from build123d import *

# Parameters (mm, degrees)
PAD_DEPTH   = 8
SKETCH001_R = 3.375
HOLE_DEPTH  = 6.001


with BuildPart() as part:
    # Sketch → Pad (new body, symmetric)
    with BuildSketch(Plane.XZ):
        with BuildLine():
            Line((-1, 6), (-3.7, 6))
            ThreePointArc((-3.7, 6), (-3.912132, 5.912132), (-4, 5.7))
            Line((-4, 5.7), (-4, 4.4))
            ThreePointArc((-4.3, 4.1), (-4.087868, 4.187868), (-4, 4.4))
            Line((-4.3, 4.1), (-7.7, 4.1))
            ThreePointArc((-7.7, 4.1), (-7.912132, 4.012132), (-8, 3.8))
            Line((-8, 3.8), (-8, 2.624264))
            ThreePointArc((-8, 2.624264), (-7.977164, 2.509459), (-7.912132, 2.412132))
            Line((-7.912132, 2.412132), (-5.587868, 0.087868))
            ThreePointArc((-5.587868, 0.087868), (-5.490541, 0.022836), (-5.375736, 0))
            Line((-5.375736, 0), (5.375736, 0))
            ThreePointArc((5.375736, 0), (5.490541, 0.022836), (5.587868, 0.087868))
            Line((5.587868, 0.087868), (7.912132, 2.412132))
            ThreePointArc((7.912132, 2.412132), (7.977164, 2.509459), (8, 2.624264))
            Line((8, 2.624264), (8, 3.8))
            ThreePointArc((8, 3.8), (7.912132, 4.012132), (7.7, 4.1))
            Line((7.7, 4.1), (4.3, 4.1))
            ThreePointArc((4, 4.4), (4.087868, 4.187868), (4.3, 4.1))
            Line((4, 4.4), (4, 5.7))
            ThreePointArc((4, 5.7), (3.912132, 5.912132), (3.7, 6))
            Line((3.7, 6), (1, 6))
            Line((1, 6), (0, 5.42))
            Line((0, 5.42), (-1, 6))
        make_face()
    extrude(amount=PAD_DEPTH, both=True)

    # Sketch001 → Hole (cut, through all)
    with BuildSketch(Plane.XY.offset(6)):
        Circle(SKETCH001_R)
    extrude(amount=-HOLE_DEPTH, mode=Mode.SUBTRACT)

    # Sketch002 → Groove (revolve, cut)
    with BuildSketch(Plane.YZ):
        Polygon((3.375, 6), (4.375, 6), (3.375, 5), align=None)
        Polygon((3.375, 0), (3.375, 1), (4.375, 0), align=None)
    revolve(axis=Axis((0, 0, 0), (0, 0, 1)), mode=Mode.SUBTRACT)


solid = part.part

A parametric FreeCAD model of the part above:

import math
import FreeCAD as App
import Part
import Sketcher
from FreeCAD import Vector
Q = App.Units.Quantity

doc = App.newDocument("Part")
body = doc.addObject("PartDesign::Body", "Body")

# Sketch on XZ plane
sketch1 = body.newObject("Sketcher::SketchObject", "Sketch")
sketch1.AttachmentSupport = (doc.getObject("XZ_Plane"), [""])
sketch1.MapMode = "FlatFace"
sketch1.addGeometry(Part.LineSegment(Vector(-1, 6, 0), Vector(-3.7, 6, 0)), False)
sketch1.addGeometry(Part.ArcOfCircle(Part.Circle(Vector(-3.7, 5.7, 0), Vector(0, 0, 1), 0.3), math.radians(90.000022), math.radians(179.999978)), False)
sketch1.addGeometry(Part.LineSegment(Vector(-4, 5.7, 0), Vector(-4, 4.4, 0)), False)
sketch1.addGeometry(Part.ArcOfCircle(Part.Circle(Vector(-4.3, 4.4, 0), Vector(0, 0, 1), 0.3), math.radians(-89.999978), math.radians(-0.000022)), False)
sketch1.addGeometry(Part.LineSegment(Vector(-4.3, 4.1, 0), Vector(-7.7, 4.1, 0)), False)
sketch1.addGeometry(Part.ArcOfCircle(Part.Circle(Vector(-7.7, 3.8, 0), Vector(0, 0, 1), 0.3), math.radians(90.000022), math.radians(179.999978)), False)
sketch1.addGeometry(Part.LineSegment(Vector(-8, 3.8, 0), Vector(-8, 2.624264, 0)), False)
sketch1.addGeometry(Part.ArcOfCircle(Part.Circle(Vector(-7.700002, 2.624263, 0), Vector(0, 0, 1), 0.299998), math.radians(179.999874), math.radians(225.000148)), False)
sketch1.addGeometry(Part.LineSegment(Vector(-7.912132, 2.412132, 0), Vector(-5.587868, 0.087868, 0)), False)
sketch1.addGeometry(Part.ArcOfCircle(Part.Circle(Vector(-5.375737, 0.299998, 0), Vector(0, 0, 1), 0.299998), math.radians(-135.000148), math.radians(-89.999874)), False)
sketch1.addGeometry(Part.LineSegment(Vector(-5.375736, 0, 0), Vector(5.375736, 0, 0)), False)
sketch1.addGeometry(Part.ArcOfCircle(Part.Circle(Vector(5.375737, 0.299998, 0), Vector(0, 0, 1), 0.299998), math.radians(-90.000126), math.radians(-44.999852)), False)
sketch1.addGeometry(Part.LineSegment(Vector(5.587868, 0.087868, 0), Vector(7.912132, 2.412132, 0)), False)
sketch1.addGeometry(Part.ArcOfCircle(Part.Circle(Vector(7.700002, 2.624263, 0), Vector(0, 0, 1), 0.299998), math.radians(-45.000148), math.radians(0.000126)), False)
sketch1.addGeometry(Part.LineSegment(Vector(8, 2.624264, 0), Vector(8, 3.8, 0)), False)
sketch1.addGeometry(Part.ArcOfCircle(Part.Circle(Vector(7.7, 3.8, 0), Vector(0, 0, 1), 0.3), math.radians(0.000022), math.radians(89.999978)), False)
sketch1.addGeometry(Part.LineSegment(Vector(7.7, 4.1, 0), Vector(4.3, 4.1, 0)), False)
sketch1.addGeometry(Part.ArcOfCircle(Part.Circle(Vector(4.3, 4.4, 0), Vector(0, 0, 1), 0.3), math.radians(-179.999978), math.radians(-90.000022)), False)
sketch1.addGeometry(Part.LineSegment(Vector(4, 4.4, 0), Vector(4, 5.7, 0)), False)
sketch1.addGeometry(Part.ArcOfCircle(Part.Circle(Vector(3.7, 5.7, 0), Vector(0, 0, 1), 0.3), math.radians(0.000022), math.radians(89.999978)), False)
sketch1.addGeometry(Part.LineSegment(Vector(3.7, 6, 0), Vector(1, 6, 0)), False)
sketch1.addGeometry(Part.LineSegment(Vector(1, 6, 0), Vector(0, 5.42, 0)), False)
sketch1.addGeometry(Part.LineSegment(Vector(0, 5.42, 0), Vector(-1, 6, 0)), False)
sketch1.addConstraint(Sketcher.Constraint("Tangent", 0, 2, 1, 1))
sketch1.addConstraint(Sketcher.Constraint("Tangent", 1, 2, 2, 1))
sketch1.addConstraint(Sketcher.Constraint("Tangent", 2, 2, 3, 2))
sketch1.addConstraint(Sketcher.Constraint("Tangent", 3, 1, 4, 1))
sketch1.addConstraint(Sketcher.Constraint("Tangent", 4, 2, 5, 1))
sketch1.addConstraint(Sketcher.Constraint("Tangent", 5, 2, 6, 1))
sketch1.addConstraint(Sketcher.Constraint("Coincident", 6, 2, 7, 1))
sketch1.addConstraint(Sketcher.Constraint("Coincident", 7, 2, 8, 1))
sketch1.addConstraint(Sketcher.Constraint("Coincident", 8, 2, 9, 1))
sketch1.addConstraint(Sketcher.Constraint("Coincident", 9, 2, 10, 1))
sketch1.addConstraint(Sketcher.Constraint("Coincident", 10, 2, 11, 1))
sketch1.addConstraint(Sketcher.Constraint("Coincident", 11, 2, 12, 1))
sketch1.addConstraint(Sketcher.Constraint("Coincident", 12, 2, 13, 1))
sketch1.addConstraint(Sketcher.Constraint("Coincident", 13, 2, 14, 1))
sketch1.addConstraint(Sketcher.Constraint("Tangent", 14, 2, 15, 1))
sketch1.addConstraint(Sketcher.Constraint("Tangent", 15, 2, 16, 1))
sketch1.addConstraint(Sketcher.Constraint("Tangent", 16, 2, 17, 2))
sketch1.addConstraint(Sketcher.Constraint("Tangent", 17, 1, 18, 1))
sketch1.addConstraint(Sketcher.Constraint("Tangent", 18, 2, 19, 1))
sketch1.addConstraint(Sketcher.Constraint("Tangent", 19, 2, 20, 1))
sketch1.addConstraint(Sketcher.Constraint("Coincident", 20, 2, 21, 1))
sketch1.addConstraint(Sketcher.Constraint("Coincident", 21, 2, 22, 1))
sketch1.addConstraint(Sketcher.Constraint("Coincident", 22, 2, 0, 1))
sketch1.addConstraint(Sketcher.Constraint("Horizontal", 0))
sketch1.addConstraint(Sketcher.Constraint("Vertical", 2))
sketch1.addConstraint(Sketcher.Constraint("Horizontal", 4))
sketch1.addConstraint(Sketcher.Constraint("Vertical", 6))
sketch1.addConstraint(Sketcher.Constraint("Horizontal", 10))
sketch1.addConstraint(Sketcher.Constraint("Vertical", 14))
sketch1.addConstraint(Sketcher.Constraint("Horizontal", 16))
sketch1.addConstraint(Sketcher.Constraint("Vertical", 18))
sketch1.addConstraint(Sketcher.Constraint("Horizontal", 20))
sketch1.addConstraint(Sketcher.Constraint("Equal", 1, 3))
sketch1.addConstraint(Sketcher.Constraint("Equal", 3, 5))
sketch1.addConstraint(Sketcher.Constraint("Equal", 5, 7))
sketch1.addConstraint(Sketcher.Constraint("Equal", 7, 9))
sketch1.addConstraint(Sketcher.Constraint("Equal", 9, 11))
sketch1.addConstraint(Sketcher.Constraint("Equal", 11, 13))
sketch1.addConstraint(Sketcher.Constraint("Equal", 13, 15))
sketch1.addConstraint(Sketcher.Constraint("Equal", 15, 17))
sketch1.addConstraint(Sketcher.Constraint("Equal", 17, 19))
sketch1.addConstraint(Sketcher.Constraint("Symmetric", 9, 2, 10, 2, -1, 1))
sketch1.addConstraint(Sketcher.Constraint("Symmetric", 7, 3, 13, 3, -2))
sketch1.addConstraint(Sketcher.Constraint("Symmetric", 3, 3, 17, 3, -2))
sketch1.addConstraint(Sketcher.Constraint("Symmetric", 8, 2, 11, 2, -2))
sketch1.addConstraint(Sketcher.Constraint("Symmetric", 20, 2, 22, 2, -2))
sketch1.addConstraint(Sketcher.Constraint("PointOnObject", 21, 2, -2))
sketch1.addConstraint(Sketcher.Constraint("Perpendicular", 8, 12))
sketch1.addConstraint(Sketcher.Constraint("Horizontal", 13, 3, 6, 2))
sketch1.addConstraint(Sketcher.Constraint("Horizontal", 7, 2, 12, 2))
sketch1.addConstraint(Sketcher.Constraint("Horizontal", 6, 2, 13, 2))
sketch1.addConstraint(Sketcher.Constraint("Vertical", 11, 3, 10, 2))
sketch1.addConstraint(Sketcher.Constraint("Radius", 1, Q("0.3 mm")))
sketch1.addConstraint(Sketcher.Constraint("DistanceX", 0, 2, 0, 1, Q("2.7 mm")))
sketch1.addConstraint(Sketcher.Constraint("DistanceX", 4, 2, 4, 1, Q("3.4 mm")))
sketch1.addConstraint(Sketcher.Constraint("DistanceY", 2, 2, 2, 1, Q("1.3 mm")))
sketch1.addConstraint(Sketcher.Constraint("DistanceY", -1, 1, 0, 2, Q("6 mm")))
sketch1.addConstraint(Sketcher.Constraint("DistanceX", 1, 2, -1, 1, Q("4 mm")))
sketch1.addConstraint(Sketcher.Constraint("DistanceY", -1, 1, 21, 2, Q("5.42 mm")))
sketch1.addConstraint(Sketcher.Constraint("DistanceX", 10, 1, 10, 2, Q("10.751472 mm")))
sketch1.addConstraint(Sketcher.Constraint("DistanceY", -1, 1, 7, 2, Q("2.412132 mm")))
sketch1.addConstraint(Sketcher.Constraint("DistanceX", 8, 2, -1, 1, Q("5.587868 mm")))
pad1 = body.newObject("PartDesign::Pad", "Pad")
pad1.Profile = sketch1
pad1.Length = 16
pad1.Midplane = True

# Sketch on XY plane
sketch2 = body.newObject("Sketcher::SketchObject", "Sketch001")
sketch2.AttachmentSupport = (doc.getObject("XY_Plane"), [""])
sketch2.MapMode = "FlatFace"
sketch2.AttachmentOffset = App.Placement(Vector(0, 0, 6), App.Rotation())
sketch2.addGeometry(Part.Circle(Vector(0, 0, 0), Vector(0, 0, 1), 3.375), False)
sketch2.addConstraint(Sketcher.Constraint("Coincident", 0, 3, -1, 1))
sketch2.addConstraint(Sketcher.Constraint("Diameter", 0, Q("6.75 mm")))
pocket1 = body.newObject("PartDesign::Pocket", "Pocket")
pocket1.Profile = sketch2
pocket1.Type = "ThroughAll"

# Sketch on YZ plane
sketch3 = body.newObject("Sketcher::SketchObject", "Sketch002")
sketch3.AttachmentSupport = (doc.getObject("YZ_Plane"), [""])
sketch3.MapMode = "FlatFace"
sketch3.addGeometry(Part.LineSegment(Vector(4.375, 6, 0), Vector(3.375, 6, 0)), False)
sketch3.addGeometry(Part.LineSegment(Vector(3.375, 6, 0), Vector(3.375, 5, 0)), False)
sketch3.addGeometry(Part.LineSegment(Vector(3.375, 5, 0), Vector(4.375, 6, 0)), False)
sketch3.addGeometry(Part.LineSegment(Vector(3.375, 1, 0), Vector(3.375, 0, 0)), False)
sketch3.addGeometry(Part.LineSegment(Vector(3.375, 0, 0), Vector(4.375, 0, 0)), False)
sketch3.addGeometry(Part.LineSegment(Vector(4.375, 0, 0), Vector(3.375, 1, 0)), False)
sketch3.addConstraint(Sketcher.Constraint("Coincident", 0, 2, 1, 1))
sketch3.addConstraint(Sketcher.Constraint("Coincident", 1, 2, 2, 1))
sketch3.addConstraint(Sketcher.Constraint("Coincident", 2, 2, 0, 1))
sketch3.addConstraint(Sketcher.Constraint("Coincident", 3, 2, 4, 1))
sketch3.addConstraint(Sketcher.Constraint("Coincident", 4, 2, 5, 1))
sketch3.addConstraint(Sketcher.Constraint("Coincident", 5, 2, 3, 1))
sketch3.addConstraint(Sketcher.Constraint("Horizontal", 0))
sketch3.addConstraint(Sketcher.Constraint("Vertical", 1))
sketch3.addConstraint(Sketcher.Constraint("Vertical", 3))
sketch3.addConstraint(Sketcher.Constraint("Horizontal", 4))
sketch3.addConstraint(Sketcher.Constraint("PointOnObject", 3, 2, -1))
sketch3.addConstraint(Sketcher.Constraint("Perpendicular", 2, 5))
sketch3.addConstraint(Sketcher.Constraint("Vertical", 1, 2, 3, 2))
sketch3.addConstraint(Sketcher.Constraint("Vertical", 2, 2, 4, 2))
sketch3.addConstraint(Sketcher.Constraint("Equal", 4, 1))
sketch3.addConstraint(Sketcher.Constraint("DistanceX", 0, 2, 0, 1, Q("1 mm")))
sketch3.addConstraint(Sketcher.Constraint("DistanceY", -1, 1, 0, 2, Q("6 mm")))
sketch3.addConstraint(Sketcher.Constraint("DistanceX", -1, 1, 0, 2, Q("3.375 mm")))
groove = body.newObject("PartDesign::Groove", "Groove")
groove.Profile = sketch3
groove.ReferenceAxis = (sketch3, ["V_Axis"])
groove.Angle = 360

doc.recompute()
